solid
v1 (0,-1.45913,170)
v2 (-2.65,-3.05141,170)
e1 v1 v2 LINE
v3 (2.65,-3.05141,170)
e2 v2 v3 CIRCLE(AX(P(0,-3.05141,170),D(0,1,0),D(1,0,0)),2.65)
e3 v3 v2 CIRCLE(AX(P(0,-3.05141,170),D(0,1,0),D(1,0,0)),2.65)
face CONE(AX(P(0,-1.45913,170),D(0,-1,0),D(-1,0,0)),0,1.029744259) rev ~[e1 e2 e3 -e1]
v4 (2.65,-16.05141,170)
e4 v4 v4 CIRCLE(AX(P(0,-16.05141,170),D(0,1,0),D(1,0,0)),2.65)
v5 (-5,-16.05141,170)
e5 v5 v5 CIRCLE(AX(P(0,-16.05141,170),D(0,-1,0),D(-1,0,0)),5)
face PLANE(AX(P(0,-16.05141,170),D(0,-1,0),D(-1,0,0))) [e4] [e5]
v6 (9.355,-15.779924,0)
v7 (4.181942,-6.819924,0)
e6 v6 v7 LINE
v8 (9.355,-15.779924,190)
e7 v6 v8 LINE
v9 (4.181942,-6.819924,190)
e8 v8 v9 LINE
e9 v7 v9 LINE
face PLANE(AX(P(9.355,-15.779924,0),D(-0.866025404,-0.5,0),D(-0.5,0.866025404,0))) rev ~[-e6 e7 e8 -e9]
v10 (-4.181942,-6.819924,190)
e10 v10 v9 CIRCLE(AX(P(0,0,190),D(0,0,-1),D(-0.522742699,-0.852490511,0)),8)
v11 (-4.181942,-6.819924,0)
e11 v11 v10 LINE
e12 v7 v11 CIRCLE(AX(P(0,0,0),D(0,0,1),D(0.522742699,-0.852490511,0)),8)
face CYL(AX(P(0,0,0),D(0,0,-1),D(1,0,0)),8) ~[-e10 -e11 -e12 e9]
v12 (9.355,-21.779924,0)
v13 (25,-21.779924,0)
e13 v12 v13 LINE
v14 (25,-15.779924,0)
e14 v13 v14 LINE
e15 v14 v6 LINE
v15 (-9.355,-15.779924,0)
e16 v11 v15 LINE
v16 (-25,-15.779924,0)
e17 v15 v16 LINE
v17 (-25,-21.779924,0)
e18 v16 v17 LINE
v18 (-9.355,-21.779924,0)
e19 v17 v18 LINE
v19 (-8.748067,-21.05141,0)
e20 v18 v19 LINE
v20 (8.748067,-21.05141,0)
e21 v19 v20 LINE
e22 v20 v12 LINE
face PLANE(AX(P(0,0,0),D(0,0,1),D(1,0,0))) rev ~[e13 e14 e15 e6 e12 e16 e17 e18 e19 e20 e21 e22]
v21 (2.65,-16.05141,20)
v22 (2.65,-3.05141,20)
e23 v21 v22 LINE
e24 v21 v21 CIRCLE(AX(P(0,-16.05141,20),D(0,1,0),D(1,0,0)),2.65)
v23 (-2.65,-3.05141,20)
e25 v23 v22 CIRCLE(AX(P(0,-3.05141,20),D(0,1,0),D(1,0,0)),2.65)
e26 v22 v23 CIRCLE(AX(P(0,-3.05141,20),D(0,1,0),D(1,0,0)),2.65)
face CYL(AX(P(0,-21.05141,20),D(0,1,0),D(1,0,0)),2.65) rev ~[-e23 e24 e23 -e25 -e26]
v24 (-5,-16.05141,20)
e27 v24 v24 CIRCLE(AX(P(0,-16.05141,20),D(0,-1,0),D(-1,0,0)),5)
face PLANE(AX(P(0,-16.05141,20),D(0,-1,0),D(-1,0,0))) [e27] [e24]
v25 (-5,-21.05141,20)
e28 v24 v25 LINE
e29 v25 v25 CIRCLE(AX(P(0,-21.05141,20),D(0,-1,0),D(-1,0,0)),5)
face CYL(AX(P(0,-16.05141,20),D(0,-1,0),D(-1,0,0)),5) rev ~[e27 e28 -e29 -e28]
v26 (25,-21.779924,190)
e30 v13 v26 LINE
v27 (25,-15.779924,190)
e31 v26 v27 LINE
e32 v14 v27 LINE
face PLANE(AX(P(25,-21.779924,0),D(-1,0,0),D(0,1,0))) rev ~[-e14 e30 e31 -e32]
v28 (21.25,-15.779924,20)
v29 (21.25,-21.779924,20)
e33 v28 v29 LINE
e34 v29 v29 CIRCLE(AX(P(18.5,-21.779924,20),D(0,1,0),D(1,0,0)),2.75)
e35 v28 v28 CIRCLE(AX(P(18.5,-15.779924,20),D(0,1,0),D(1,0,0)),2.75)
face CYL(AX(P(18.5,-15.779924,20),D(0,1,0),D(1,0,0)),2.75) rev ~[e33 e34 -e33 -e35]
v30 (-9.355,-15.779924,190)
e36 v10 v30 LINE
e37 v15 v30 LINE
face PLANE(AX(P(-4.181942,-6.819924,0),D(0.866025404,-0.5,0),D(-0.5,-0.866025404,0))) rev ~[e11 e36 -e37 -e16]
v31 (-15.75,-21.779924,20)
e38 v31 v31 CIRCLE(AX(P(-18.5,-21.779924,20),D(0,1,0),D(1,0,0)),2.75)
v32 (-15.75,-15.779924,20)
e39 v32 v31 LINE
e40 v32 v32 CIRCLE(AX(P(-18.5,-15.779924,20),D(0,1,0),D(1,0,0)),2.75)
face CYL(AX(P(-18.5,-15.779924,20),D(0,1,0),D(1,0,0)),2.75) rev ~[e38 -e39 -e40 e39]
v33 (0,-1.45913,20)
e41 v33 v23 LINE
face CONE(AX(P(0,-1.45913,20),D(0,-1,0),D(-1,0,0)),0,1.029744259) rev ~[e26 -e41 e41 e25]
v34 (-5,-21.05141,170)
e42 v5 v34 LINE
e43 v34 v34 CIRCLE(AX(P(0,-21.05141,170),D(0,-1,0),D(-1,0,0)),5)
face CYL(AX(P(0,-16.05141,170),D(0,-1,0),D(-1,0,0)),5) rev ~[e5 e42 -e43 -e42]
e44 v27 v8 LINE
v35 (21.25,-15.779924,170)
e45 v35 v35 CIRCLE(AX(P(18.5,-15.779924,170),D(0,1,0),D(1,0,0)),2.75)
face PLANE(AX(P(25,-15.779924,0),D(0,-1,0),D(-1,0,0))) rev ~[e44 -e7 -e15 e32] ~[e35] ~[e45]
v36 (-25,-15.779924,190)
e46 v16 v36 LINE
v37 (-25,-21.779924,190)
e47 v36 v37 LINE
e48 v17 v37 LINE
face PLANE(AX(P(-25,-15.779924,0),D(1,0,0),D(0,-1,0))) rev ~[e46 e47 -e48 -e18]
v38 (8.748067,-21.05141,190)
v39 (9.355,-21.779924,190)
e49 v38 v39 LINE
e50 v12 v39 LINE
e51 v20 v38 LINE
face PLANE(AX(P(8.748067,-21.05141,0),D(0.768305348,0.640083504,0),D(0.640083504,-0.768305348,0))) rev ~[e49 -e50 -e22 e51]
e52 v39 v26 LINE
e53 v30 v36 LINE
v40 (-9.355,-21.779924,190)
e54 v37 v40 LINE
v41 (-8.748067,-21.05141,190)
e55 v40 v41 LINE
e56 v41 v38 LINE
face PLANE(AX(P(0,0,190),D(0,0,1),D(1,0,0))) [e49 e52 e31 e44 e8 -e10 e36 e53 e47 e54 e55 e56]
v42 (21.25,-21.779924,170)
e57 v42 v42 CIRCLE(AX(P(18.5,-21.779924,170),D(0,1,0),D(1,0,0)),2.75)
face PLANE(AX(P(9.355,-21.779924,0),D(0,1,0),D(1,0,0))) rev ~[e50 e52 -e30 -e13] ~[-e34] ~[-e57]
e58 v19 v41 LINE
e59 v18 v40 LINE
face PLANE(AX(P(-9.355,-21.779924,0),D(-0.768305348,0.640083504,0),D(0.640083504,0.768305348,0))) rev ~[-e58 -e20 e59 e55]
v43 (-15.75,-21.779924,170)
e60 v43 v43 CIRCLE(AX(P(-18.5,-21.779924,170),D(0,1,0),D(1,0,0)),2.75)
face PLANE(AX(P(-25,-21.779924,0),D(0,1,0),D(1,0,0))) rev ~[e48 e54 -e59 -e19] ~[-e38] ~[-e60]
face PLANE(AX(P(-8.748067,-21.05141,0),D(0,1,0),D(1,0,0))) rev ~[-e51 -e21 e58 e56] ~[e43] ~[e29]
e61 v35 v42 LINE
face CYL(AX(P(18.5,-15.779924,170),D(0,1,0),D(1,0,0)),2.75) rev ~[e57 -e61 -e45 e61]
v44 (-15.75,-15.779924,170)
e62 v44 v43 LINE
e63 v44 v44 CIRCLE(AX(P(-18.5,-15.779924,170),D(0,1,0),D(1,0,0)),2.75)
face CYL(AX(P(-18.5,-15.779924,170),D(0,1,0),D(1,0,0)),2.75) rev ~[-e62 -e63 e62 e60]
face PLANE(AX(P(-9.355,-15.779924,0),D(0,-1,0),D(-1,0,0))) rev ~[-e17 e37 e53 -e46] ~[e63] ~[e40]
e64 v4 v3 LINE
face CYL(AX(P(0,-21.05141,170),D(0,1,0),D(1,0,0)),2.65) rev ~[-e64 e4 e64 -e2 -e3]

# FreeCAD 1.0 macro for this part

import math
import FreeCAD as App
import Part
import Sketcher
Q = App.Units.Quantity

doc = App.newDocument("Part")
body = doc.addObject("PartDesign::Body", "Body")

# Sketch on XY plane
sketch1 = doc.addObject("Sketcher::SketchObject", "Sketch")
body.addObject(sketch1)
sketch1.AttachmentSupport = (doc.XY_Plane, [""])
sketch1.MapMode = "FlatFace"
sketch1.addGeometry(Part.Circle(App.Vector(0, 0, 0), App.Vector(0, 0, 1), 8), False)
sketch1.addConstraint([
    Sketcher.Constraint("Coincident", 0, 3, -1, 1),
    Sketcher.Constraint("Diameter", 0, 16.0),
])
pad1 = doc.addObject("PartDesign::Pad", "Pad")
body.addObject(pad1)
pad1.Profile = sketch1
pad1.Length = 190

# Sketch on XY plane
sketch2 = doc.addObject("Sketcher::SketchObject", "Sketch001")
body.addObject(sketch2)
sketch2.AttachmentSupport = (doc.XY_Plane, [""])
sketch2.MapMode = "FlatFace"
sketch2.addGeometry([
    Part.LineSegment(App.Vector(9.355, -15.779924, 0), App.Vector(4.181942, -6.819924, 0)),  # 0
    Part.ArcOfCircle(Part.Circle(App.Vector(0, 0, 0), App.Vector(0, 0, 1), 8), math.radians(-121.516407), math.radians(-58.483593)),  # 1
    Part.LineSegment(App.Vector(-4.181942, -6.819924, 0), App.Vector(-9.355, -15.779924, 0)),  # 2
    Part.LineSegment(App.Vector(-9.355, -15.779924, 0), App.Vector(-25, -15.779924, 0)),  # 3
    Part.LineSegment(App.Vector(-25, -15.779924, 0), App.Vector(-25, -21.779924, 0)),  # 4
    Part.LineSegment(App.Vector(-25, -21.779924, 0), App.Vector(-9.355, -21.779924, 0)),  # 5
    Part.LineSegment(App.Vector(-9.355, -21.779924, 0), App.Vector(-8.748067, -21.05141, 0)),  # 6
    Part.LineSegment(App.Vector(-8.748067, -21.05141, 0), App.Vector(8.748067, -21.05141, 0)),  # 7
    Part.LineSegment(App.Vector(8.748067, -21.05141, 0), App.Vector(9.355, -21.779924, 0)),  # 8
    Part.LineSegment(App.Vector(9.355, -21.779924, 0), App.Vector(25, -21.779924, 0)),  # 9
    Part.LineSegment(App.Vector(25, -21.779924, 0), App.Vector(25, -15.779924, 0)),  # 10
    Part.LineSegment(App.Vector(25, -15.779924, 0), App.Vector(9.355, -15.779924, 0)),  # 11
], False)
sketch2.addConstraint([
    Sketcher.Constraint("Coincident", 0, 2, 1, 2),
    Sketcher.Constraint("Coincident", 1, 1, 2, 1),
    Sketcher.Constraint("Coincident", 2, 2, 3, 1),
    Sketcher.Constraint("Coincident", 3, 2, 4, 1),
    Sketcher.Constraint("Coincident", 4, 2, 5, 1),
    Sketcher.Constraint("Coincident", 5, 2, 6, 1),
    Sketcher.Constraint("Coincident", 6, 2, 7, 1),
    Sketcher.Constraint("Coincident", 7, 2, 8, 1),
    Sketcher.Constraint("Coincident", 8, 2, 9, 1),
    Sketcher.Constraint("Coincident", 9, 2, 10, 1),
    Sketcher.Constraint("Coincident", 10, 2, 11, 1),
    Sketcher.Constraint("Coincident", 11, 2, 0, 1),
    Sketcher.Constraint("Horizontal", 3),
    Sketcher.Constraint("Vertical", 4),
    Sketcher.Constraint("Horizontal", 5),
    Sketcher.Constraint("Horizontal", 7),
    Sketcher.Constraint("Horizontal", 9),
    Sketcher.Constraint("Vertical", 10),
    Sketcher.Constraint("Horizontal", 11),
    Sketcher.Constraint("Coincident", 1, 3, -1, 1),
    Sketcher.Constraint("Symmetric", 5, 2, 8, 2, -2),
    Sketcher.Constraint("Symmetric", 3, 2, 10, 2, -2),
    Sketcher.Constraint("Horizontal", 0, 2, 1, 1),
    Sketcher.Constraint("Vertical", 2, 2, 5, 2),
    Sketcher.Constraint("Vertical", 8, 2, 11, 2),
    Sketcher.Constraint("Equal", 6, 8),
    Sketcher.Constraint("Radius", 1, 8.0),
    Sketcher.Constraint("DistanceY", 4, 2, 4, 1, 6.0),
    Sketcher.Constraint("Angle", 0, Q("120 deg")),
    Sketcher.Constraint("DistanceX", 3, 2, -1, 1, 25.0),
    Sketcher.Constraint("DistanceX", 3, 2, 3, 1, 15.645),
    Sketcher.Constraint("DistanceY", 2, 2, 1, 1, 8.96),
    Sketcher.Constraint("Distance", 6, 0.948209),
    Sketcher.Constraint("DistanceX", 7, 1, 7, 2, 17.496135),
])
pad2 = doc.addObject("PartDesign::Pad", "Pad001")
body.addObject(pad2)
pad2.Profile = sketch2
pad2.Length = 190

# Sketch on XZ plane
sketch3 = doc.addObject("Sketcher::SketchObject", "Sketch002")
body.addObject(sketch3)
sketch3.AttachmentSupport = (doc.XZ_Plane, [""])
sketch3.MapMode = "FlatFace"
sketch3.AttachmentOffset = App.Placement(App.Vector(0, 0, 15.779924), App.Rotation())
sketch3.addGeometry([
    Part.Circle(App.Vector(-18.5, 170, 0), App.Vector(0, 0, 1), 2.75),
    Part.Circle(App.Vector(18.5, 170, 0), App.Vector(0, 0, 1), 2.75),
    Part.Circle(App.Vector(18.5, 20, 0), App.Vector(0, 0, 1), 2.75),
    Part.Circle(App.Vector(-18.5, 20, 0), App.Vector(0, 0, 1), 2.75),
], False)
sketch3.addConstraint([
    Sketcher.Constraint("Equal", 0, 1),
    Sketcher.Constraint("Equal", 1, 2),
    Sketcher.Constraint("Equal", 2, 3),
    Sketcher.Constraint("Symmetric", 0, 3, 1, 3, -2),
    Sketcher.Constraint("Symmetric", 2, 3, 3, 3, -2),
    Sketcher.Constraint("Vertical", 1, 3, 2, 3),
    Sketcher.Constraint("Diameter", 0, 5.5),
    Sketcher.Constraint("DistanceY", -1, 1, 0, 3, 170.0),
    Sketcher.Constraint("DistanceY", -1, 1, 2, 3, 20.0),
    Sketcher.Constraint("DistanceX", 0, 3, 1, 3, 37.0),
])
pocket1 = doc.addObject("PartDesign::Pocket", "Pocket")
body.addObject(pocket1)
pocket1.Profile = sketch3
pocket1.Type = "ThroughAll"
pocket1.Reversed = True

# Sketch on XZ plane
sketch4 = doc.addObject("Sketcher::SketchObject", "Sketch003")
body.addObject(sketch4)
sketch4.AttachmentSupport = (doc.XZ_Plane, [""])
sketch4.MapMode = "FlatFace"
sketch4.AttachmentOffset = App.Placement(App.Vector(0, 0, 21.05141), App.Rotation())
sketch4.addGeometry([
    Part.Circle(App.Vector(0, 20, 0), App.Vector(0, 0, 1), 2.65),
    Part.Circle(App.Vector(0, 170, 0), App.Vector(0, 0, 1), 2.65),
], False)
sketch4.addConstraint([
    Sketcher.Constraint("Equal", 0, 1),
    Sketcher.Constraint("PointOnObject", 0, 3, -2),
    Sketcher.Constraint("PointOnObject", 1, 3, -2),
    Sketcher.Constraint("Diameter", 0, 5.3),
    Sketcher.Constraint("DistanceY", -1, 1, 0, 3, 20.0),
    Sketcher.Constraint("DistanceY", -1, 1, 1, 3, 170.0),
])
doc.recompute()
hole = doc.addObject("PartDesign::Hole", "Hole")
body.addObject(hole)
hole.Profile = sketch4
hole.ThreadType = "None"
hole.Diameter = 5.3
hole.DepthType = "Dimension"
hole.Depth = 18
hole.DrillPoint = "Angled"
hole.DrillPointAngle = 118
hole.HoleCutType = "Counterbore"
hole.HoleCutDiameter = 10
hole.HoleCutDepth = 5

doc.recompute()
